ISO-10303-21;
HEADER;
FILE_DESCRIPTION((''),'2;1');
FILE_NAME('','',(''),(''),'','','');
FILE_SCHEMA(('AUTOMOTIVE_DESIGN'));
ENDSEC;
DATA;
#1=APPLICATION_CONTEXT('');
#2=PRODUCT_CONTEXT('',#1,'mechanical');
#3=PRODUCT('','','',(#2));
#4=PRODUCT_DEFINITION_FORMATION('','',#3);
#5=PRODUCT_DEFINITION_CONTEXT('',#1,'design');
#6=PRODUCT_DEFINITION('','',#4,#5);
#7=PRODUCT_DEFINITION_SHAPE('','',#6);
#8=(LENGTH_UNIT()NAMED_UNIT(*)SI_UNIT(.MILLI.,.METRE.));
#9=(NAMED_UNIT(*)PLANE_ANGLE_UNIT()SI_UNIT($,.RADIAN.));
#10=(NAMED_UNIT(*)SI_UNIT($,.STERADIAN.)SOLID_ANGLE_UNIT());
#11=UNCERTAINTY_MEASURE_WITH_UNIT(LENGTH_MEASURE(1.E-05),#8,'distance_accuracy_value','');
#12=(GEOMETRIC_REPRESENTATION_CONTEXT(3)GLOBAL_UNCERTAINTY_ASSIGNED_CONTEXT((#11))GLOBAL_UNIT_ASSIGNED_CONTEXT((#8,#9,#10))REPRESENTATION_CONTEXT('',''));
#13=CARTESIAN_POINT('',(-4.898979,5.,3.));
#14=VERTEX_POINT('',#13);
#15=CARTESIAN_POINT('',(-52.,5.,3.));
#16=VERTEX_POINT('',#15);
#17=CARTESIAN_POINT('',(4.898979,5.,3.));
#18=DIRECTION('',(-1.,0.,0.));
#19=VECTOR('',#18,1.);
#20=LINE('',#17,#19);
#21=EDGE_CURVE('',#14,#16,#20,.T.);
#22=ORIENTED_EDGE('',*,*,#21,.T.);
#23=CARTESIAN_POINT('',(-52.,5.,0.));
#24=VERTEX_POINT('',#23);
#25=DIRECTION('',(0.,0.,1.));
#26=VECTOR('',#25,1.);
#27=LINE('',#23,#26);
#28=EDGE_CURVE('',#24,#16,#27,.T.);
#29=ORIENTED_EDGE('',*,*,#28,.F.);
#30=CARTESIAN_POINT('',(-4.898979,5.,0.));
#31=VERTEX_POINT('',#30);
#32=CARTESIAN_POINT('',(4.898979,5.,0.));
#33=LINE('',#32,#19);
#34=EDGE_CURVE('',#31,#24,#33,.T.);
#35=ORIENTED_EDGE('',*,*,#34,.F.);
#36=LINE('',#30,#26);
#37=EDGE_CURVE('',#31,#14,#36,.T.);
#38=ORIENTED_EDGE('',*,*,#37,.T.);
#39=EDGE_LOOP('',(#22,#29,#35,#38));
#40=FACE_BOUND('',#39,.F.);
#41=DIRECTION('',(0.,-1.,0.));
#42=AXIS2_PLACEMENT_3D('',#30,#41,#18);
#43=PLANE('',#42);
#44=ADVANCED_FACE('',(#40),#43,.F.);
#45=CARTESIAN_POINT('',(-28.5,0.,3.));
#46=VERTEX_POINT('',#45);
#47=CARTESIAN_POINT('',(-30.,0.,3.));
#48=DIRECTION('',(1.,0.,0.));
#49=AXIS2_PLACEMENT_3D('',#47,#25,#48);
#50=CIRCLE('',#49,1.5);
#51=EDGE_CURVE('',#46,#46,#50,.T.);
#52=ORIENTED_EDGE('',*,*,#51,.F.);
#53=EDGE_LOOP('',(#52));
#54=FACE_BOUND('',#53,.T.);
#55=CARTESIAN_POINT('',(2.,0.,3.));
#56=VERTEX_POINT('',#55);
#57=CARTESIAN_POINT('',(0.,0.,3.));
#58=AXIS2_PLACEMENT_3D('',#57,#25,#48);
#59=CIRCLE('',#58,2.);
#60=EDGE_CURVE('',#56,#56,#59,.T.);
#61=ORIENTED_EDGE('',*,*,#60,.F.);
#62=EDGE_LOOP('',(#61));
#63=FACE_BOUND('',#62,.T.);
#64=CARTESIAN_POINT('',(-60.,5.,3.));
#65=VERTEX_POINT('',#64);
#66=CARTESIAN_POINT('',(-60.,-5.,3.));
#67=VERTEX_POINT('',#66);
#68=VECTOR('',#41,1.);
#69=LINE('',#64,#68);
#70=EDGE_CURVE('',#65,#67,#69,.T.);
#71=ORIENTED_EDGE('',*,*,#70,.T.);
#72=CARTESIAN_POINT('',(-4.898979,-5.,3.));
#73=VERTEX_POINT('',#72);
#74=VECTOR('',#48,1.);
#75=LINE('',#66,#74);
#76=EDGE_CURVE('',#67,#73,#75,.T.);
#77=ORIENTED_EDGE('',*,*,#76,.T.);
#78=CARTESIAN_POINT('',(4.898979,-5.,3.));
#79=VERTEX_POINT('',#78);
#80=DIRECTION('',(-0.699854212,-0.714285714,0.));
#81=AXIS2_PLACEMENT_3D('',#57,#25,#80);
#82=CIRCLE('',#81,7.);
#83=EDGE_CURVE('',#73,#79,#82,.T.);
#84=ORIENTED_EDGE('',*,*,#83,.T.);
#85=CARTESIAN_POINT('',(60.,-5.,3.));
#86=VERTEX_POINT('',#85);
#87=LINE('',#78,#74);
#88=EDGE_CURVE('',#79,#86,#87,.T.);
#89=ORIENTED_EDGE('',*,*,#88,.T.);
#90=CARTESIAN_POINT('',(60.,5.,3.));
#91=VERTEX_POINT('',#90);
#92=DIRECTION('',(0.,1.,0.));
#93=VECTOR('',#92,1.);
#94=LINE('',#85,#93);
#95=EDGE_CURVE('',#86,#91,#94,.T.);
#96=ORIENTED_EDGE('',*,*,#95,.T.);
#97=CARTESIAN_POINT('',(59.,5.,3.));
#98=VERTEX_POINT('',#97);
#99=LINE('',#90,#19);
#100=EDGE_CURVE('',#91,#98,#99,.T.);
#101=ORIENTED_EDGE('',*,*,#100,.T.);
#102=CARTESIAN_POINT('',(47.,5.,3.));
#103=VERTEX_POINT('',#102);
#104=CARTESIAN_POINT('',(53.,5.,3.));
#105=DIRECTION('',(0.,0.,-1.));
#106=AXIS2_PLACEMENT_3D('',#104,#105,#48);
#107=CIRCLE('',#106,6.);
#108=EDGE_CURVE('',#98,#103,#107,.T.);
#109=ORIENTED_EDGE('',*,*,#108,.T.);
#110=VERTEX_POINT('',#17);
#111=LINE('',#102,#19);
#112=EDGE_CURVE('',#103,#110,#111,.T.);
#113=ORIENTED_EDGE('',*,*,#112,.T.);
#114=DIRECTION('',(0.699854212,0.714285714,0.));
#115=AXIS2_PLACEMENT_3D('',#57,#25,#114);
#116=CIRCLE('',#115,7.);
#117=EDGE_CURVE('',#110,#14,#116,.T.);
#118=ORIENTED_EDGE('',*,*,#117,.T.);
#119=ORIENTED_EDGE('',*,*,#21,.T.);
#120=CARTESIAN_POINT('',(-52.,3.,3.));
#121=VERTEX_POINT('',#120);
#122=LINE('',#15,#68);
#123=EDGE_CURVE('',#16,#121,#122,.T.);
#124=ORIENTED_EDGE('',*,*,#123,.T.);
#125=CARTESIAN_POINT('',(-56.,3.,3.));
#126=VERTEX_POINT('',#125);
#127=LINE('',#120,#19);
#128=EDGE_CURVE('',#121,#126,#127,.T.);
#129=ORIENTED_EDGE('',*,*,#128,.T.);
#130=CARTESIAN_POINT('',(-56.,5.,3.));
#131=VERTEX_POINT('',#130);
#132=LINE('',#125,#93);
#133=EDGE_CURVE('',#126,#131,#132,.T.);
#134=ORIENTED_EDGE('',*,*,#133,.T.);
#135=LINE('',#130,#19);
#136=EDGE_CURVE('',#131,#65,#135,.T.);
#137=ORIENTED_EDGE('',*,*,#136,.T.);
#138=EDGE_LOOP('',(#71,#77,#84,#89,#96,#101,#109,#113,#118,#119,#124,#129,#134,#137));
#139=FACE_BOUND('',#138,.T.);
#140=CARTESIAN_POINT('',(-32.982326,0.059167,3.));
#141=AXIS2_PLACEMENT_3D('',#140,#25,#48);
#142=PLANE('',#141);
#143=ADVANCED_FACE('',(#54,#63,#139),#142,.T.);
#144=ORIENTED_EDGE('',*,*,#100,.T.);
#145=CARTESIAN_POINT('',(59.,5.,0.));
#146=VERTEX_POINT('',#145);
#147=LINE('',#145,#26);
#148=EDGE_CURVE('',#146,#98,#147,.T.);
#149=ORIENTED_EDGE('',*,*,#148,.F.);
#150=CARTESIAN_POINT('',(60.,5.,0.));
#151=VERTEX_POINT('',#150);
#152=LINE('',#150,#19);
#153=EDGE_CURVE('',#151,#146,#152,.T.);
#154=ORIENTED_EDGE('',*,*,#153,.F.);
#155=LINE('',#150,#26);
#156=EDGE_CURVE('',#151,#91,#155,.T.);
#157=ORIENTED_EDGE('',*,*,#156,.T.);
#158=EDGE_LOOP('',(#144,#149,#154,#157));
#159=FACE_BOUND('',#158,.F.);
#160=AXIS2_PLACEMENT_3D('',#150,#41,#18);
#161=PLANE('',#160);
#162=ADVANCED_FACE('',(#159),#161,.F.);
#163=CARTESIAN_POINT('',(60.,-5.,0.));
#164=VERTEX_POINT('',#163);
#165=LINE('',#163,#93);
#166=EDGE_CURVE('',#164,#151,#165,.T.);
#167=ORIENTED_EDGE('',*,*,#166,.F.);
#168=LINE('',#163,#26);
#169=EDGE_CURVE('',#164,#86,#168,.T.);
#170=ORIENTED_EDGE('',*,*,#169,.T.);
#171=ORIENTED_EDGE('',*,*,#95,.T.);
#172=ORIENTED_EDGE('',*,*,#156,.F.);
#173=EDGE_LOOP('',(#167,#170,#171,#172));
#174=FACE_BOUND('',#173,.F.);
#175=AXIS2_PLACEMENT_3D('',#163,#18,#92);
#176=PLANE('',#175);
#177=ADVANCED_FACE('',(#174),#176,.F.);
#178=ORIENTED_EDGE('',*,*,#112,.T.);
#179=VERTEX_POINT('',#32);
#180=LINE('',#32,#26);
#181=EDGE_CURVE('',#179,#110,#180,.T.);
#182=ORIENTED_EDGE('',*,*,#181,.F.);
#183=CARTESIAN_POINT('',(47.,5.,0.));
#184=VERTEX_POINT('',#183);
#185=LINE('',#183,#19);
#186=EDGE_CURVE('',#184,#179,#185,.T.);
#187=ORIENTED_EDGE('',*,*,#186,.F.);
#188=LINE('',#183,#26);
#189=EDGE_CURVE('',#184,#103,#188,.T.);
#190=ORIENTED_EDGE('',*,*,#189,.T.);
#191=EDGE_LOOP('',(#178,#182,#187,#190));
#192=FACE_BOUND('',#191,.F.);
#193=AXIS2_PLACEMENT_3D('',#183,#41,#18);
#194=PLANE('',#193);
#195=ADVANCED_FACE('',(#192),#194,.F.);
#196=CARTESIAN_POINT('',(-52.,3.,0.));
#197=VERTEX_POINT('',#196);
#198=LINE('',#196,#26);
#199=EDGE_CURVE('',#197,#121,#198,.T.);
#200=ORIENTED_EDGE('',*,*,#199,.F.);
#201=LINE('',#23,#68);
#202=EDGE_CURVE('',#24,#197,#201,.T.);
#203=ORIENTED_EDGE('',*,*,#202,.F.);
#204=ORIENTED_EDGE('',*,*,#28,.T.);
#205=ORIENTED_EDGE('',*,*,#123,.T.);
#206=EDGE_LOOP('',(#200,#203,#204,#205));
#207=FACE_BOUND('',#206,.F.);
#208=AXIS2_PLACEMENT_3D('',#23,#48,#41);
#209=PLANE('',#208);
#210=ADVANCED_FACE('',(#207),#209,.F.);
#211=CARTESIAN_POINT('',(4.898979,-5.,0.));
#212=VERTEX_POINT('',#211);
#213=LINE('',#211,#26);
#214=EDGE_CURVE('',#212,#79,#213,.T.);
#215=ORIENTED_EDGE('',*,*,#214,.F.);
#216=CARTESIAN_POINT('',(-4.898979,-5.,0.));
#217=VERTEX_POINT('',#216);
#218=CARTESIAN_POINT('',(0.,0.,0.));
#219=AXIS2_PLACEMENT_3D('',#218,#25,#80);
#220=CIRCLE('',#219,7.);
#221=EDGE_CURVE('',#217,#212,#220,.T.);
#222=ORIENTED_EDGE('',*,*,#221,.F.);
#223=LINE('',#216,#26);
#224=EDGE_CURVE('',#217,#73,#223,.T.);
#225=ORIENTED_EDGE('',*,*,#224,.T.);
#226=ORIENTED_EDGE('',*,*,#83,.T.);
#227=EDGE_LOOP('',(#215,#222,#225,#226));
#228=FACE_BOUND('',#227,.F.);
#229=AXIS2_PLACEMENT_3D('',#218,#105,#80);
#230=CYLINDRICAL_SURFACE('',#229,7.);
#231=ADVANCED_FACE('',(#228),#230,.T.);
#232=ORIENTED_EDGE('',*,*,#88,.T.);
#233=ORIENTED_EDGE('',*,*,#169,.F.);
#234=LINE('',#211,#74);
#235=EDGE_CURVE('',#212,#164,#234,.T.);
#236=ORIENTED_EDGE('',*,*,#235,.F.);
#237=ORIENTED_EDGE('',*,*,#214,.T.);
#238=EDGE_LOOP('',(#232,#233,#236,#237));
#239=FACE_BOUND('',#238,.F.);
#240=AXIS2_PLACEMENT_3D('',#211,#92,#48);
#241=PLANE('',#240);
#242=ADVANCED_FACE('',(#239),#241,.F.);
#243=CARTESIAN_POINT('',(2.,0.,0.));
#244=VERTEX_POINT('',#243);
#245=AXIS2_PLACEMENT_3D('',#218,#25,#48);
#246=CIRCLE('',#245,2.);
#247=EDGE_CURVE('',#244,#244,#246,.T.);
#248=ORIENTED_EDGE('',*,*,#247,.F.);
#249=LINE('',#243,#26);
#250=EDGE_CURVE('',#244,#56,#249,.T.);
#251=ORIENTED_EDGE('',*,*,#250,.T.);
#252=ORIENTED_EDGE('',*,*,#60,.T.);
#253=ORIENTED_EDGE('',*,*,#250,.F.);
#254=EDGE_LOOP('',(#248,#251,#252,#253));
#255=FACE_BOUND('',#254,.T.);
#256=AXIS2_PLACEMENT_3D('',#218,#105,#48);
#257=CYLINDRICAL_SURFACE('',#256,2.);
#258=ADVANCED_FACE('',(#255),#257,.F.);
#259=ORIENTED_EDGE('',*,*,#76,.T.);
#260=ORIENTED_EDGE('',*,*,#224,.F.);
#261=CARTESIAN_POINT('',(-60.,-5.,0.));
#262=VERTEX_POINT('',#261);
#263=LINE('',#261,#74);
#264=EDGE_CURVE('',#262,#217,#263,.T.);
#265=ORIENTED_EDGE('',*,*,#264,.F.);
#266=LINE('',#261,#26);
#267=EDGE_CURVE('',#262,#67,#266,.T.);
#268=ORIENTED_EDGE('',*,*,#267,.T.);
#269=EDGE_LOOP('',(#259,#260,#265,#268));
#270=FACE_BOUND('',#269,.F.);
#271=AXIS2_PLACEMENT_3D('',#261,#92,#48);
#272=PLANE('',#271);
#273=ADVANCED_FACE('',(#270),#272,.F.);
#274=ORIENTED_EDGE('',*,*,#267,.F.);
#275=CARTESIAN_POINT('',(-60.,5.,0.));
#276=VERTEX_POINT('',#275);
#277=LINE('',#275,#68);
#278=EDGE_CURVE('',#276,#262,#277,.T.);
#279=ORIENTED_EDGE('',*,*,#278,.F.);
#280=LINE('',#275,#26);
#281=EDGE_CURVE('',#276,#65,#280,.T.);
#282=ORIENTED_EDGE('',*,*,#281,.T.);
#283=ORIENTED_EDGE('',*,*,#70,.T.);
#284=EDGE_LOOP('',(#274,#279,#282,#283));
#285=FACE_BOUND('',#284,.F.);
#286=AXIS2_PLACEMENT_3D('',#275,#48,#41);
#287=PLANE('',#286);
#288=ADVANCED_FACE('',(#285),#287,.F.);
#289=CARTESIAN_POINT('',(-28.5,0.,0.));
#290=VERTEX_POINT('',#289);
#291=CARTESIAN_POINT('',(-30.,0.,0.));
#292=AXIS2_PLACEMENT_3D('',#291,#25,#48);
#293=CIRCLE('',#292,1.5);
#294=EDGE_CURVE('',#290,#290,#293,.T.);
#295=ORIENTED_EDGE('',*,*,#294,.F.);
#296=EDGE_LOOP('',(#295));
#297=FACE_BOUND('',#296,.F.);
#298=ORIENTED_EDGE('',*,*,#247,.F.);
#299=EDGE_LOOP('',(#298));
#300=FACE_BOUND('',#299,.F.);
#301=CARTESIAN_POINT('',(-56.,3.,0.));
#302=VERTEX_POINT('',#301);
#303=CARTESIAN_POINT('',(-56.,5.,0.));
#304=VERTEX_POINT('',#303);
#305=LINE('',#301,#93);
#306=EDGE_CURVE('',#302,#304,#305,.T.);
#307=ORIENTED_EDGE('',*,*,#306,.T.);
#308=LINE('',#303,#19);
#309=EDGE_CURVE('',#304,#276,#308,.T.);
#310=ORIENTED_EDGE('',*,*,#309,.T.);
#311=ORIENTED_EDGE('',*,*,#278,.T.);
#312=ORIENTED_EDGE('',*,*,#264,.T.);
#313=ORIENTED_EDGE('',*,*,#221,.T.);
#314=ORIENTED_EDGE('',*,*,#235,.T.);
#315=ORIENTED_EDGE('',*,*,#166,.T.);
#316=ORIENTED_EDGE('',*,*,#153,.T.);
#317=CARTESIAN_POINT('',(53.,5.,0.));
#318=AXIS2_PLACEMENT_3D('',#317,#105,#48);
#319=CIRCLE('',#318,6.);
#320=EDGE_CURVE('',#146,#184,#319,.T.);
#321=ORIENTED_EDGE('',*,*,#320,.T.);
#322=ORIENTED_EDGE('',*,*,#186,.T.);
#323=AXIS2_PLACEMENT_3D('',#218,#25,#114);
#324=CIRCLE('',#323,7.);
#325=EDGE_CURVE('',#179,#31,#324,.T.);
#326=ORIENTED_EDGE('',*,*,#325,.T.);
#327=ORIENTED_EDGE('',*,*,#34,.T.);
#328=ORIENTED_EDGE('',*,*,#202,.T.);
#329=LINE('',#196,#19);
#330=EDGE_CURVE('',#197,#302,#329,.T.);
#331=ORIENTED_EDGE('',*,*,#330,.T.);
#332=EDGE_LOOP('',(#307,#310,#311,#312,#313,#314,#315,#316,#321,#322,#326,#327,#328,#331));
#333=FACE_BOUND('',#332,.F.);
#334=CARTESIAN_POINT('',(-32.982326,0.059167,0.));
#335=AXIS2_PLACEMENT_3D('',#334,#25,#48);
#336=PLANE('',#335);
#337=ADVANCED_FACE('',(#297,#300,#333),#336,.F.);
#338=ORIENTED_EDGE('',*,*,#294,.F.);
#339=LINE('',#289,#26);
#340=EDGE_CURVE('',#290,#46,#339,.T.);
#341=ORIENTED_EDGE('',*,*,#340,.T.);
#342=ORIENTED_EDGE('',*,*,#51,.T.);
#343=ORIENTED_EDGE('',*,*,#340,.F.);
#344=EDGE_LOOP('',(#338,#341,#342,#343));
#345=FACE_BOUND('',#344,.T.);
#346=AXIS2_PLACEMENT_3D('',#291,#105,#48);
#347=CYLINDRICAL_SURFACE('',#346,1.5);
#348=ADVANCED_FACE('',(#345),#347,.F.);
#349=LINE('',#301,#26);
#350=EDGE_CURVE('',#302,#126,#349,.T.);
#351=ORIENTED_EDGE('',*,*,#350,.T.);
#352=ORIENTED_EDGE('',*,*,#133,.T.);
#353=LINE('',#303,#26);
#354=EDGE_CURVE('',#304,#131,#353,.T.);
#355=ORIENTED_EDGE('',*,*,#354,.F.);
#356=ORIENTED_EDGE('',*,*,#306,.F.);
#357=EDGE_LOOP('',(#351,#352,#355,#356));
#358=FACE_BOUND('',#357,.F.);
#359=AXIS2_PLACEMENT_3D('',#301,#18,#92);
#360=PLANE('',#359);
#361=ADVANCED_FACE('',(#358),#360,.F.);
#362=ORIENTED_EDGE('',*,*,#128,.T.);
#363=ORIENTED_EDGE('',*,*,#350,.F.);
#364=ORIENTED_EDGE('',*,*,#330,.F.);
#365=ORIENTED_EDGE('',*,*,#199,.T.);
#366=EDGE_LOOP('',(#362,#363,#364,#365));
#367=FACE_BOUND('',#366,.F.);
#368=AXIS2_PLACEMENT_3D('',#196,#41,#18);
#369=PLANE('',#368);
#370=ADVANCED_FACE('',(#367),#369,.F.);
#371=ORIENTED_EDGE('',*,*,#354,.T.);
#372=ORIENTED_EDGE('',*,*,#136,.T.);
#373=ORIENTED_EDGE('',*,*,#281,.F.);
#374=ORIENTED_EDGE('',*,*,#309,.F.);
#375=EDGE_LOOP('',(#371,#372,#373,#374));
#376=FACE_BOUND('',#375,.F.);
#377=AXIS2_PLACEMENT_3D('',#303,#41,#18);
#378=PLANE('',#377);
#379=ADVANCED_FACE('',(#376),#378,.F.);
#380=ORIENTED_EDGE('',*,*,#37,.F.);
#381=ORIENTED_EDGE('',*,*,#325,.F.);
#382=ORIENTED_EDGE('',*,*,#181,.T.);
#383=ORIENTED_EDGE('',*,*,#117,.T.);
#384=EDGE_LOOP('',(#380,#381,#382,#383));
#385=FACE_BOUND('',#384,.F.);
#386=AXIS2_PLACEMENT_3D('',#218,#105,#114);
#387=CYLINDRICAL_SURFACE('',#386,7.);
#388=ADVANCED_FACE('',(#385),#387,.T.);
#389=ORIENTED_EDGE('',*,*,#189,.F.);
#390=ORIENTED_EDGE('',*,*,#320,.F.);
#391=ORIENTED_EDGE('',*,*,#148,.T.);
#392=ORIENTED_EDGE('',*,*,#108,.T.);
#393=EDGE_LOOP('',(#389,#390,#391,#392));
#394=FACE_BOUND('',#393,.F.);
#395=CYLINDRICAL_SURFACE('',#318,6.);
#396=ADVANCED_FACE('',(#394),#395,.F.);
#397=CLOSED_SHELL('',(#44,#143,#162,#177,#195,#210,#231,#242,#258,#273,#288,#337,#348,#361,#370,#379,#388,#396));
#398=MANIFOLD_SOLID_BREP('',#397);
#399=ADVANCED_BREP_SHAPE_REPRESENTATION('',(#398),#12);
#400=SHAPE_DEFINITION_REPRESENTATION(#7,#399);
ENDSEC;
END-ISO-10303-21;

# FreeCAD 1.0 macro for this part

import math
import FreeCAD as App
import Part
import Sketcher
from FreeCAD import Vector
Q = App.Units.Quantity

doc = App.newDocument("Part")
params = doc.addObject("Spreadsheet::Sheet", "Params")
for row, (alias, value) in enumerate([
    ("sketch1_diameter", "3 mm"),
    ("sketch1_diameter2", "4 mm"),
    ("sketch1_radius", "7 mm"),
    ("sketch1_radius2", "6 mm"),
    ("sketch1_width", "4 mm"),
    ("pad1_length", "3 mm"),
], start=1):
    params.set(f"A{row}", alias)
    params.set(f"B{row}", "=" + value)
    params.setAlias(f"B{row}", alias)

body = doc.addObject("PartDesign::Body", "Body")

sketch1 = doc.addObject("Sketcher::SketchObject", "Sketch")
body.addObject(sketch1)
sketch1.AttachmentSupport = (doc.XY_Plane, [""])
sketch1.MapMode = "FlatFace"
sketch1.addGeometry([
    Part.LineSegment(Vector(-56, 5, 0), Vector(-60, 5, 0)),
    Part.LineSegment(Vector(-60, 5, 0), Vector(-60, -5, 0)),
    Part.LineSegment(Vector(-60, -5, 0), Vector(-4.898979, -5, 0)),
    Part.ArcOfCircle(Part.Circle(Vector(0, 0, 0), Vector(0, 0, 1), 7), math.radians(-134.415309), math.radians(-45.584691)),
    Part.LineSegment(Vector(4.898979, -5, 0), Vector(60, -5, 0)),
    Part.LineSegment(Vector(60, -5, 0), Vector(60, 5, 0)),
    Part.LineSegment(Vector(60, 5, 0), Vector(59, 5, 0)),
    Part.ArcOfCircle(Part.Circle(Vector(53, 5, 0), Vector(0, 0, 1), 6), math.radians(180), math.radians(360)),
    Part.LineSegment(Vector(47, 5, 0), Vector(4.898979, 5, 0)),
    Part.ArcOfCircle(Part.Circle(Vector(0, 0, 0), Vector(0, 0, 1), 7), math.radians(45.584691), math.radians(134.415309)),
    Part.LineSegment(Vector(-4.898979, 5, 0), Vector(-52, 5, 0)),
    Part.LineSegment(Vector(-52, 5, 0), Vector(-52, 3, 0)),
    Part.LineSegment(Vector(-52, 3, 0), Vector(-56, 3, 0)),
    Part.LineSegment(Vector(-56, 3, 0), Vector(-56, 5, 0)),
    Part.Circle(Vector(-30, 0, 0), Vector(0, 0, 1), 1.5),
    Part.Circle(Vector(0, 0, 0), Vector(0, 0, 1), 2),
], False)
sketch1.addConstraint([
    Sketcher.Constraint("Coincident", 0, 2, 1, 1),
    Sketcher.Constraint("Coincident", 1, 2, 2, 1),
    Sketcher.Constraint("Coincident", 2, 2, 3, 1),
    Sketcher.Constraint("Coincident", 3, 2, 4, 1),
    Sketcher.Constraint("Coincident", 4, 2, 5, 1),
    Sketcher.Constraint("Coincident", 5, 2, 6, 1),
    Sketcher.Constraint("Coincident", 6, 2, 7, 2),
    Sketcher.Constraint("Coincident", 7, 1, 8, 1),
    Sketcher.Constraint("Coincident", 8, 2, 9, 1),
    Sketcher.Constraint("Coincident", 9, 2, 10, 1),
    Sketcher.Constraint("Coincident", 10, 2, 11, 1),
    Sketcher.Constraint("Coincident", 11, 2, 12, 1),
    Sketcher.Constraint("Coincident", 12, 2, 13, 1),
    Sketcher.Constraint("Coincident", 13, 2, 0, 1),
    Sketcher.Constraint("Horizontal", 0),
    Sketcher.Constraint("Vertical", 1),
    Sketcher.Constraint("Horizontal", 2),
    Sketcher.Constraint("Horizontal", 4),
    Sketcher.Constraint("Vertical", 5),
    Sketcher.Constraint("Horizontal", 6),
    Sketcher.Constraint("Horizontal", 8),
    Sketcher.Constraint("Horizontal", 10),
    Sketcher.Constraint("Vertical", 11),
    Sketcher.Constraint("Horizontal", 12),
    Sketcher.Constraint("Vertical", 13),
    Sketcher.Constraint("Coincident", 3, 3, -1, 1),
    Sketcher.Constraint("Coincident", 9, 3, -1, 1),
    Sketcher.Constraint("Coincident", 15, 3, -1, 1),
    Sketcher.Constraint("Equal", 3, 9),
    Sketcher.Constraint("Symmetric", 0, 2, 4, 2, -1, 1),
    Sketcher.Constraint("PointOnObject", 14, 3, -1),
    Sketcher.Constraint("Horizontal", 7, 3, 0, 2),
    Sketcher.Constraint("Horizontal", 2, 2, 3, 2),
    Sketcher.Constraint("Horizontal", 0, 2, 5, 2),
    Sketcher.Constraint("Horizontal", 6, 2, 7, 1),
    Sketcher.Constraint("Horizontal", 8, 2, 9, 2),
    Sketcher.Constraint("Equal", 0, 12),
    Sketcher.Constraint("Diameter", 14, Q("3 mm")),
    Sketcher.Constraint("Diameter", 15, Q("4 mm")),
    Sketcher.Constraint("Radius", 3, Q("7 mm")),
    Sketcher.Constraint("Radius", 7, Q("6 mm")),
    Sketcher.Constraint("DistanceX", 0, 2, 0, 1, Q("4 mm")),
    Sketcher.Constraint("DistanceX", 6, 2, 6, 1, Q("1 mm")),
    Sketcher.Constraint("DistanceY", 1, 2, 1, 1, Q("10 mm")),
    Sketcher.Constraint("DistanceY", 11, 2, 11, 1, Q("2 mm")),
    Sketcher.Constraint("DistanceX", -1, 1, 7, 3, Q("53 mm")),
    Sketcher.Constraint("DistanceX", 14, 3, -1, 1, Q("30 mm")),
])
sketch1.setExpression("Constraints[37]", "Params.sketch1_diameter")
sketch1.setExpression("Constraints[38]", "Params.sketch1_diameter2")
sketch1.setExpression("Constraints[39]", "Params.sketch1_radius")
sketch1.setExpression("Constraints[40]", "Params.sketch1_radius2")
sketch1.setExpression("Constraints[41]", "Params.sketch1_width")
pad1 = doc.addObject("PartDesign::Pad", "Pad")
body.addObject(pad1)
pad1.Profile = sketch1
pad1.setExpression("Length", "Params.pad1_length")

doc.recompute()
